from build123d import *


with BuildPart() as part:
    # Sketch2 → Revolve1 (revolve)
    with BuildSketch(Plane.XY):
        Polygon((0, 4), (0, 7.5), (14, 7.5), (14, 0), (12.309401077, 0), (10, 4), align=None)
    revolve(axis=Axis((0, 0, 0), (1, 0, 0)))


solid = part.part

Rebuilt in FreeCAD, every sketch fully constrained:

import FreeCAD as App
import Part
import Sketcher
Q = App.Units.Quantity


def add_polygon(sketch, points):
    """Adds a closed chain of lines whose ends are joined by coincident constraints."""
    first, n = sketch.GeometryCount, len(points)
    for a, b in zip(points, points[1:] + points[:1]):
        sketch.addGeometry(Part.LineSegment(App.Vector(*a, 0), App.Vector(*b, 0)), False)
    for i in range(n):
        sketch.addConstraint(Sketcher.Constraint("Coincident", first + i, 2, first + (i + 1) % n, 1))

doc = App.newDocument("Part")
params = doc.addObject("Spreadsheet::Sheet", "Params")
for row, (alias, value) in enumerate([
    ("sketch1_width", "10 mm"),
    ("sketch1_width2", "14 mm"),
    ("sketch1_height", "3.5 mm"),
    ("sketch1_height2", "7.5 mm"),
    ("revolution_angle", "360 deg"),
], start=1):
    params.set(f"A{row}", alias)
    params.set(f"B{row}", "=" + value)
    params.setAlias(f"B{row}", alias)

body = doc.addObject("PartDesign::Body", "Body")

sketch1 = body.newObject("Sketcher::SketchObject", "Sketch")
sketch1.AttachmentSupport = (doc.getObject("XY_Plane"), [""])
sketch1.MapMode = "FlatFace"
add_polygon(sketch1, [(0, 7.5), (0, 4), (10, 4), (12.3, 0), (14, 0), (14, 7.5)])
sketch1.addConstraint(Sketcher.Constraint("Vertical", 0))
sketch1.addConstraint(Sketcher.Constraint("Horizontal", 1))
sketch1.addConstraint(Sketcher.Constraint("Horizontal", 3))
sketch1.addConstraint(Sketcher.Constraint("Vertical", 4))
sketch1.addConstraint(Sketcher.Constraint("Horizontal", 5))
sketch1.addConstraint(Sketcher.Constraint("PointOnObject", 0, 2, -2))
sketch1.addConstraint(Sketcher.Constraint("PointOnObject", 2, 2, -1))
sketch1.addConstraint(Sketcher.Constraint("DistanceX", 1, 1, 1, 2, Q("10 mm")))
sketch1.addConstraint(Sketcher.Constraint("DistanceX", 5, 2, 5, 1, Q("14 mm")))
sketch1.addConstraint(Sketcher.Constraint("Angle", 2, Q("-60 deg")))
sketch1.addConstraint(Sketcher.Constraint("DistanceY", 0, 2, 0, 1, Q("3.5 mm")))
sketch1.addConstraint(Sketcher.Constraint("DistanceY", 4, 1, 4, 2, Q("7.5 mm")))
sketch1.setExpression("Constraints[13]", "Params.sketch1_width")
sketch1.setExpression("Constraints[14]", "Params.sketch1_width2")
sketch1.setExpression("Constraints[16]", "Params.sketch1_height")
sketch1.setExpression("Constraints[17]", "Params.sketch1_height2")
revolution = body.newObject("PartDesign::Revolution", "Revolution")
revolution.Profile = sketch1
revolution.ReferenceAxis = (sketch1, ["H_Axis"])
revolution.setExpression("Angle", "Params.revolution_angle")

doc.recompute()
